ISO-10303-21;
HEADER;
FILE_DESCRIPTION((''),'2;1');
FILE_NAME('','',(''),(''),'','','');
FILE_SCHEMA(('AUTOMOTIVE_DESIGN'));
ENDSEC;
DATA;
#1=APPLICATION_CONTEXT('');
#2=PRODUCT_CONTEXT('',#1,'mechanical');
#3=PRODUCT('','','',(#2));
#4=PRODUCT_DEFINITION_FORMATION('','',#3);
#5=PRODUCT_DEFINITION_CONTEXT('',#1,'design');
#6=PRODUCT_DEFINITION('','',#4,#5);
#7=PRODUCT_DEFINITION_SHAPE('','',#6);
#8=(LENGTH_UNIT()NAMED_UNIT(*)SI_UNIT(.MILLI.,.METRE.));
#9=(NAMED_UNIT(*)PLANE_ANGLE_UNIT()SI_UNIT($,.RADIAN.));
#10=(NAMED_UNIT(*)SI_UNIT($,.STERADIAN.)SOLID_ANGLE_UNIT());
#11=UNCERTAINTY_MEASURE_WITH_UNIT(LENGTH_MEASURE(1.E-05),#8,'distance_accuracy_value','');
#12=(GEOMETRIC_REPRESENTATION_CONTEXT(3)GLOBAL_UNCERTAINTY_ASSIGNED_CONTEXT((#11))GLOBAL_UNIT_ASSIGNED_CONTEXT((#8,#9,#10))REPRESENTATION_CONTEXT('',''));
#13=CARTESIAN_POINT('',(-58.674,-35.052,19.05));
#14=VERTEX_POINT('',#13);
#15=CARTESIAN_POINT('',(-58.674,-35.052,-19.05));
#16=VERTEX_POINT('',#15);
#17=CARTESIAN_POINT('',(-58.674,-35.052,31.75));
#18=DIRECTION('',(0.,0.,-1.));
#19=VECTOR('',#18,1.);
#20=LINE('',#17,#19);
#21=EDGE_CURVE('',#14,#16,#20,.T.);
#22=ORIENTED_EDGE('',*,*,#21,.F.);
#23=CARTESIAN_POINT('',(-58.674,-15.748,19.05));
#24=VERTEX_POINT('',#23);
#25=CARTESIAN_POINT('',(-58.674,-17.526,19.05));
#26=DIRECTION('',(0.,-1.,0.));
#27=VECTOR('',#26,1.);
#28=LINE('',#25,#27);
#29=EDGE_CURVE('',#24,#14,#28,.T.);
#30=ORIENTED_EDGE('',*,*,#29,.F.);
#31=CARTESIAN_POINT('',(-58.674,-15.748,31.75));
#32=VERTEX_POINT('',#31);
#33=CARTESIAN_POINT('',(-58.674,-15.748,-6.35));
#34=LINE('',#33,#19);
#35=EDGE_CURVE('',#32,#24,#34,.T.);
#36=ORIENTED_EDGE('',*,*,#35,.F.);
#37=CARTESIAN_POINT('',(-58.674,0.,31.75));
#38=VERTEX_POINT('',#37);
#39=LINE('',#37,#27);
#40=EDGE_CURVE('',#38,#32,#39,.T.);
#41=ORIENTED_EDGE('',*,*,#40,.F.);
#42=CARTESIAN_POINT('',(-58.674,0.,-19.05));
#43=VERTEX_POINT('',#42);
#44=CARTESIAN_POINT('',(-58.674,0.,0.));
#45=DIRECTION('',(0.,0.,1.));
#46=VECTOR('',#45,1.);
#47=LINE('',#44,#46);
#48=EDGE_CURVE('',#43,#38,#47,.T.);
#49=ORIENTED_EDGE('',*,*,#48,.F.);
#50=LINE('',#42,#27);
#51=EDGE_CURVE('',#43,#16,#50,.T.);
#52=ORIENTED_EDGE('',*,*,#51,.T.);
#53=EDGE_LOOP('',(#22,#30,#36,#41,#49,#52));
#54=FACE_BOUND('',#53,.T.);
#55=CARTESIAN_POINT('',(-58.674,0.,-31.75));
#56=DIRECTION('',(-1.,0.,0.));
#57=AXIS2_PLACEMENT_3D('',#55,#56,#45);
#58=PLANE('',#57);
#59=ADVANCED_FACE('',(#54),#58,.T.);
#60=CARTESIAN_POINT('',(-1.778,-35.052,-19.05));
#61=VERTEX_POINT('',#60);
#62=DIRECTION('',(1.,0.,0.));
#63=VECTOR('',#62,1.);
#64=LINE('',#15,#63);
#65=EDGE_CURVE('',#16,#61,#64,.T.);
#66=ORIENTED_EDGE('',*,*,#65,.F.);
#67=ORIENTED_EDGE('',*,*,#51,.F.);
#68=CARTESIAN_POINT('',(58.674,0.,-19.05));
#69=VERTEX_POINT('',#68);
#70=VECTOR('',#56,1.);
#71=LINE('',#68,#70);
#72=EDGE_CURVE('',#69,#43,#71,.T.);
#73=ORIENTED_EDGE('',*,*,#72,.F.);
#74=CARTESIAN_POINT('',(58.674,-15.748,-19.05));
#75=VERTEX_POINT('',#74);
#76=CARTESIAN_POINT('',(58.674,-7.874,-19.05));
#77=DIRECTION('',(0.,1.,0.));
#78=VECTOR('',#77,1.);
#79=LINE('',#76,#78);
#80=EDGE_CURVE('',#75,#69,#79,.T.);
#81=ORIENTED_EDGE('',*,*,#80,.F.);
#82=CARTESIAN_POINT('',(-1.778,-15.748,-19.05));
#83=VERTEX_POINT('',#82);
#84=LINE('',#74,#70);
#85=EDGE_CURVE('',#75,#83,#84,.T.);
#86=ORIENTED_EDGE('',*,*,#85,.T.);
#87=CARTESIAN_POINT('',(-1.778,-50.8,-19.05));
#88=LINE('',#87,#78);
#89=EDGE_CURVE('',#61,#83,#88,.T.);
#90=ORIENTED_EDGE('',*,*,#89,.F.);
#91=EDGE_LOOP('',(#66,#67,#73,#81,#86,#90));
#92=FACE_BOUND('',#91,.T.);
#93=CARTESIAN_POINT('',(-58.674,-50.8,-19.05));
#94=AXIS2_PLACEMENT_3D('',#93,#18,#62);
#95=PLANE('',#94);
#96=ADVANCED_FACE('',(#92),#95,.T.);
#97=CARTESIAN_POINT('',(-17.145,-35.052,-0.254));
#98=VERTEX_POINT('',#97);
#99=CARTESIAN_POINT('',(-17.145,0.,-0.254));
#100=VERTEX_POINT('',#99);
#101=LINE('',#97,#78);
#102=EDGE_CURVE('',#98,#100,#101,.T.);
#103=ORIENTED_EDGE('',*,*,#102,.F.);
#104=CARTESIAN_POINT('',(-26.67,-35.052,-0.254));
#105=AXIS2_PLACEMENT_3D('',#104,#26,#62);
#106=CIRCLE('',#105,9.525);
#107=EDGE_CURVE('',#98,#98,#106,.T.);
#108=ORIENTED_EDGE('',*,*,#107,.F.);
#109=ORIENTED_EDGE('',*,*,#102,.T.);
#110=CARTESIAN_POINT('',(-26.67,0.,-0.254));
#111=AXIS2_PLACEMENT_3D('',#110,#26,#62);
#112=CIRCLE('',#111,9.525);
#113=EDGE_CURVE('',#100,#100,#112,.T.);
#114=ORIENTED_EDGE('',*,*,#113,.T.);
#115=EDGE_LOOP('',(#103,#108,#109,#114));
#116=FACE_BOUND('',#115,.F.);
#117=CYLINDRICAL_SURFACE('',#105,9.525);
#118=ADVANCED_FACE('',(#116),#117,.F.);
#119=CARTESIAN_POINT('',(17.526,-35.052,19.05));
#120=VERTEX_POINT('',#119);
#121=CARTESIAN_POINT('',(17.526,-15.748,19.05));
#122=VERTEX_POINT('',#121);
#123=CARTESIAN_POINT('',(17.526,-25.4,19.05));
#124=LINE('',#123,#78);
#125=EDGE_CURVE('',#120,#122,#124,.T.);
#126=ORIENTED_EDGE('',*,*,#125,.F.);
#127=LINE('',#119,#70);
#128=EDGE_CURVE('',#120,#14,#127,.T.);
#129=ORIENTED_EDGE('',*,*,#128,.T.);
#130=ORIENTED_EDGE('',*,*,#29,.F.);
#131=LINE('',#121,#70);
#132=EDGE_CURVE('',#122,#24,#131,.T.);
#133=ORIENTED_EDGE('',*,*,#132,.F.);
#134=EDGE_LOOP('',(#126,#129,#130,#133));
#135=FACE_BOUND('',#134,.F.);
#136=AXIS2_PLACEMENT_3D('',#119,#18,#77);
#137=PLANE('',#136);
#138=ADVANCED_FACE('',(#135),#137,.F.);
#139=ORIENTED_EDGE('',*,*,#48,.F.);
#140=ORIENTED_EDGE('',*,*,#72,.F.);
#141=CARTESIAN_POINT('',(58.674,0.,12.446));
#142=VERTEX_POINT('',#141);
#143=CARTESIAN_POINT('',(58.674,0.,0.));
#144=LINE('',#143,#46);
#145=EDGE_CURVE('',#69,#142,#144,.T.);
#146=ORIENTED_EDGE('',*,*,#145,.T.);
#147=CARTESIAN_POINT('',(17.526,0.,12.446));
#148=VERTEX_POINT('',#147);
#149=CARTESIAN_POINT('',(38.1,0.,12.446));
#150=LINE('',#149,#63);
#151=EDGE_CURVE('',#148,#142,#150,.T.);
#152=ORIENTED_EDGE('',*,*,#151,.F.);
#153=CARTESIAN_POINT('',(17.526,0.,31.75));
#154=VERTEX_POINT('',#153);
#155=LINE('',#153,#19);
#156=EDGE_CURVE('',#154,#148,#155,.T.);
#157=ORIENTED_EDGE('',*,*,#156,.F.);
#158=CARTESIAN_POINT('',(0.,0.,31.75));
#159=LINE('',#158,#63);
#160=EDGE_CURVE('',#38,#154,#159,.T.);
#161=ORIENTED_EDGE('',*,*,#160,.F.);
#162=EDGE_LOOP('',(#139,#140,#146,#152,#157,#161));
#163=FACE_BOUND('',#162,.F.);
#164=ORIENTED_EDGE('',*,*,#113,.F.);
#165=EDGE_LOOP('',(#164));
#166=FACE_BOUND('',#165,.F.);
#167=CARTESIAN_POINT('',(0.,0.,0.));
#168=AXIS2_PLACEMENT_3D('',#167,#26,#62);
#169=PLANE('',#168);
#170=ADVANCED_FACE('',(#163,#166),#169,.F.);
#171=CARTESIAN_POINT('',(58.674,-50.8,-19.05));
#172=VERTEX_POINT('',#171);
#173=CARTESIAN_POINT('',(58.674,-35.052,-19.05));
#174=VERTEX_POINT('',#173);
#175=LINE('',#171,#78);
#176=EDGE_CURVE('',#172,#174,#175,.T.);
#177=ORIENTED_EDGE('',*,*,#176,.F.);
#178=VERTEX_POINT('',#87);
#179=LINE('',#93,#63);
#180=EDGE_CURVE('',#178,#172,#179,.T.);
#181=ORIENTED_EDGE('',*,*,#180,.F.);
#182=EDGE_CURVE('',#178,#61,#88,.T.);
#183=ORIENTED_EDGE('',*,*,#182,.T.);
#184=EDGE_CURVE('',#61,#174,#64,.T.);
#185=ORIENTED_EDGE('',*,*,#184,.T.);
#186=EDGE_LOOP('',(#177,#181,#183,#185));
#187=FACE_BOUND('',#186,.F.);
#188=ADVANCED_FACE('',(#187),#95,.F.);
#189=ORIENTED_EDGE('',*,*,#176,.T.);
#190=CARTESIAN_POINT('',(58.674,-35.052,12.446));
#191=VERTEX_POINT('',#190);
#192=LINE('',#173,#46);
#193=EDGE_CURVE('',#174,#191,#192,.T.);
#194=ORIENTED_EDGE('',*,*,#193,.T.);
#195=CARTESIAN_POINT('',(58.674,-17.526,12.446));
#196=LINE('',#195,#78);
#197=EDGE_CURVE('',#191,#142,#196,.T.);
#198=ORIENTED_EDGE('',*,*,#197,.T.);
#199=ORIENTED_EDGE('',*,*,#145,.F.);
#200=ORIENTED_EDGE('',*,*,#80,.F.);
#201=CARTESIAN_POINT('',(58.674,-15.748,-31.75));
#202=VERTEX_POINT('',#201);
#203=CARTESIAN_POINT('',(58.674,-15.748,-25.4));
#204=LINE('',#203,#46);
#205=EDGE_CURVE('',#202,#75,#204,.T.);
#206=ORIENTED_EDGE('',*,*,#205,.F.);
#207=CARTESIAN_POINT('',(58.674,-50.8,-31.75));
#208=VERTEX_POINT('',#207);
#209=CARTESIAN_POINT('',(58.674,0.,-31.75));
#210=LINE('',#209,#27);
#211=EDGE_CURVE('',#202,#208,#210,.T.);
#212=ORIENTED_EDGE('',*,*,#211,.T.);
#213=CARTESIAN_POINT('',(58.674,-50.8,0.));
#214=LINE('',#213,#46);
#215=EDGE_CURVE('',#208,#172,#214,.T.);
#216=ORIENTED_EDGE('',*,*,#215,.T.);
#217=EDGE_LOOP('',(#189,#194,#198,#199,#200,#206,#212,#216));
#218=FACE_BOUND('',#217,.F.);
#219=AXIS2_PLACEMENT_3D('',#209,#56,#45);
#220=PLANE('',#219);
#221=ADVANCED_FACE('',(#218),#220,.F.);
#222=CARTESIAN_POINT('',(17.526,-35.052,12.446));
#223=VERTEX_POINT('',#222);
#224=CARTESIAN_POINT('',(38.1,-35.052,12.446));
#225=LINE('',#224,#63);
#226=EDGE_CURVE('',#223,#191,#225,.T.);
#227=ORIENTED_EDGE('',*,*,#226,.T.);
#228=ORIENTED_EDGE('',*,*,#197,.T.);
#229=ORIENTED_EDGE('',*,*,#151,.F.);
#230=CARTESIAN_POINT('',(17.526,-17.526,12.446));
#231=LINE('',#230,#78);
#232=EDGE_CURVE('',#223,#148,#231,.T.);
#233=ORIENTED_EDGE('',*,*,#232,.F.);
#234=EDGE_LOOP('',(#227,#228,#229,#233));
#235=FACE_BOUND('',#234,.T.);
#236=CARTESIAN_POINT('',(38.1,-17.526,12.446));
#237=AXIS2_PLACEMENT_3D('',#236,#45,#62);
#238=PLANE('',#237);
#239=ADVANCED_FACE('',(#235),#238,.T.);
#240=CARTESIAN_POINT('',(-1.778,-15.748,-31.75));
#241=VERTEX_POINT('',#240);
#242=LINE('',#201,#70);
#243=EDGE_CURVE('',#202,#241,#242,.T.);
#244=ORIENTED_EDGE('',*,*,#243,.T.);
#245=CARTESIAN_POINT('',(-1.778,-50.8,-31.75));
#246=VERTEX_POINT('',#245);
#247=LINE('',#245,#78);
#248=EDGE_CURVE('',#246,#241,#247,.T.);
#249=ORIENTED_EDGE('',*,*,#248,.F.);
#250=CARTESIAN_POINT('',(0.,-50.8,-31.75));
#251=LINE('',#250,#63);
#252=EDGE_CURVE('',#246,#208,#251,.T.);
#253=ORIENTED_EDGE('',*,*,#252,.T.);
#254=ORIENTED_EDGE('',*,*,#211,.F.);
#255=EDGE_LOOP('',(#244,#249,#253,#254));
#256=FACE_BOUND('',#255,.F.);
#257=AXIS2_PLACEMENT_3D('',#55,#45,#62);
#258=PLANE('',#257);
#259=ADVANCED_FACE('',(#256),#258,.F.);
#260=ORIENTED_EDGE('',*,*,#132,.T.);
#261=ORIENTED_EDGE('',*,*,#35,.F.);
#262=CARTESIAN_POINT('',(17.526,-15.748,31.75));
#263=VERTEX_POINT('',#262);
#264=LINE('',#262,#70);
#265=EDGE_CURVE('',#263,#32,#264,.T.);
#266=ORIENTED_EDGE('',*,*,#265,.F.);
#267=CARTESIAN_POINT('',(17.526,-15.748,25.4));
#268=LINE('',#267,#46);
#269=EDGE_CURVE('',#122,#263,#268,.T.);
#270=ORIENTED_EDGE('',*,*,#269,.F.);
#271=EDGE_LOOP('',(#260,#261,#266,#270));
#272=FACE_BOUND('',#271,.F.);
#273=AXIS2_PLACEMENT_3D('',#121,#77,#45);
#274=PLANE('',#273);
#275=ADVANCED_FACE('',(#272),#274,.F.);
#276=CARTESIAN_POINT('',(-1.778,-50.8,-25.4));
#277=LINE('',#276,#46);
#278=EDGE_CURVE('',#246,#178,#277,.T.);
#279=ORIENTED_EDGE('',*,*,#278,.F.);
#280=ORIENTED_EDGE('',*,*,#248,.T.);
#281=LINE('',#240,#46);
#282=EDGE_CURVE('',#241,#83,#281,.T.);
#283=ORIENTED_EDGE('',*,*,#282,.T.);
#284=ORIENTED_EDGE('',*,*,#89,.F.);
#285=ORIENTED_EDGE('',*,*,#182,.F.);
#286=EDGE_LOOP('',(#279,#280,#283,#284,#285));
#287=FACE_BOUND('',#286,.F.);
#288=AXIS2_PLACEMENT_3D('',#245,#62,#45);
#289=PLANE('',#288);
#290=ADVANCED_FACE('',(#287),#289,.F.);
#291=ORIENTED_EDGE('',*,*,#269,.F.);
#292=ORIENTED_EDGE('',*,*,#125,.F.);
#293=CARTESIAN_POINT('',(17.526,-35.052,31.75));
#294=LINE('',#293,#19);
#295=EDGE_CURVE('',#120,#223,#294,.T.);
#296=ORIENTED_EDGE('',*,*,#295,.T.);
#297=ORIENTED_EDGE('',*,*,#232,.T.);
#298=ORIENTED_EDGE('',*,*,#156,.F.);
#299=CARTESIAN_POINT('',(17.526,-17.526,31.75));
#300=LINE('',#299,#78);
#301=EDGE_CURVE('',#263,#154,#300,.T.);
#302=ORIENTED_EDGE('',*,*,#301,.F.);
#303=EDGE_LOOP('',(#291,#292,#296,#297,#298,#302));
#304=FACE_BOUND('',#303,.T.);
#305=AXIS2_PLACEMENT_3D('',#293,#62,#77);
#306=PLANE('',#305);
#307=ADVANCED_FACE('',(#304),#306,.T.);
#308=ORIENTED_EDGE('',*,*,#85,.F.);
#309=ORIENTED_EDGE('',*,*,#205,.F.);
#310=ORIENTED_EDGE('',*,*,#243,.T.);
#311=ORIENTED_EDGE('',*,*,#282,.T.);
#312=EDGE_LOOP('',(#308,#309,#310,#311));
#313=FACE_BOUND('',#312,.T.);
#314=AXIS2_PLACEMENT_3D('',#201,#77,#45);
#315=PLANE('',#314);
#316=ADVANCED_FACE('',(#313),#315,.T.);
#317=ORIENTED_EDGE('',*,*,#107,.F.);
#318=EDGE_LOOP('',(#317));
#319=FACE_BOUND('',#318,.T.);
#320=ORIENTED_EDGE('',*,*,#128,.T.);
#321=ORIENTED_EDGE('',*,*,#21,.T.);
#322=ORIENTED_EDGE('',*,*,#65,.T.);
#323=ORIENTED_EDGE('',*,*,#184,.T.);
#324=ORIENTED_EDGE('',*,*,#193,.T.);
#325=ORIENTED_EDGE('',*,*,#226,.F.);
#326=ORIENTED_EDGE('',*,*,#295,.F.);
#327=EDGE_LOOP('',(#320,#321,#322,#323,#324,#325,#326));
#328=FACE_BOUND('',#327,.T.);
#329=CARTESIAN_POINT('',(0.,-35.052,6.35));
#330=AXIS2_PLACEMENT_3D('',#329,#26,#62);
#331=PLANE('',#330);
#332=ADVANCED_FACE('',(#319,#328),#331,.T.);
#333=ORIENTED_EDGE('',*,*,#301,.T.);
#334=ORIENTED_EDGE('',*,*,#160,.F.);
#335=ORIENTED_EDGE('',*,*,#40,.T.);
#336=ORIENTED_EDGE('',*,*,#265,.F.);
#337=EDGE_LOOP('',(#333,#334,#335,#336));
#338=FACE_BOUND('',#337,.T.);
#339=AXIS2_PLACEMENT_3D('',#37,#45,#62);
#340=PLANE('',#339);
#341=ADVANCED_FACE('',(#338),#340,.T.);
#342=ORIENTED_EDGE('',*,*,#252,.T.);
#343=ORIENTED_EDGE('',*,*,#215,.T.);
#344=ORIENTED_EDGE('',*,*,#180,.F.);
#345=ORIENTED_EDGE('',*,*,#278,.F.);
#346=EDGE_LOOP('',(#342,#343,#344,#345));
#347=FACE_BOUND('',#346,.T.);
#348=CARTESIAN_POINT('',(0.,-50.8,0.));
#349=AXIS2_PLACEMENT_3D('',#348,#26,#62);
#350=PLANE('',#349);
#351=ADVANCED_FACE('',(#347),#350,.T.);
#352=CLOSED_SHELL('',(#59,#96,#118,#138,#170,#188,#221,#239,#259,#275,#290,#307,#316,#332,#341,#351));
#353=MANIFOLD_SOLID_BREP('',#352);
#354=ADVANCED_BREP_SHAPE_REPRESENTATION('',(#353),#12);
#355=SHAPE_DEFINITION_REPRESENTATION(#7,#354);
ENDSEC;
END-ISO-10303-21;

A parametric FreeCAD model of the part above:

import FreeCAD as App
import Part
import Sketcher
Q = App.Units.Quantity


def add_polygon(sketch, points):
    """Adds a closed chain of lines whose ends are joined by coincident constraints."""
    first, n = sketch.GeometryCount, len(points)
    for a, b in zip(points, points[1:] + points[:1]):
        sketch.addGeometry(Part.LineSegment(App.Vector(*a, 0), App.Vector(*b, 0)), False)
    for i in range(n):
        sketch.addConstraint(Sketcher.Constraint("Coincident", first + i, 2, first + (i + 1) % n, 1))

doc = App.newDocument("Part")
body = doc.addObject("PartDesign::Body", "Body")

# Sketch on XZ plane
sketch1 = body.newObject("Sketcher::SketchObject", "Sketch")
sketch1.AttachmentSupport = (doc.getObject("XZ_Plane"), [""])
sketch1.MapMode = "FlatFace"
add_polygon(sketch1, [(-58.674, 31.75), (-58.674, -31.75), (58.674, -31.75), (58.674, 31.75)])  # lines 0-3
sketch1.addConstraint([
    Sketcher.Constraint("Vertical", 0),
    Sketcher.Constraint("Horizontal", 1),
    Sketcher.Constraint("Vertical", 2),
    Sketcher.Constraint("Horizontal", 3),
    Sketcher.Constraint("Symmetric", 0, 2, 2, 2, -1, 1),
    Sketcher.Constraint("DistanceY", 0, 2, 0, 1, Q("2.5 in")),
    Sketcher.Constraint("DistanceX", 1, 1, 1, 2, Q("4.62 in")),
])
pad1 = body.newObject("PartDesign::Pad", "Pad")
pad1.Profile = sketch1
pad1.Length = Q("2 in")

# Sketch on XZ plane
sketch2 = body.newObject("Sketcher::SketchObject", "Sketch001")
sketch2.AttachmentSupport = (doc.getObject("XZ_Plane"), [""])
sketch2.MapMode = "FlatFace"
sketch2.AttachmentOffset = App.Placement(App.Vector(0, 0, 2 * 25.4), App.Rotation())
add_polygon(sketch2, [(-58.674, -19.05), (-58.674, -31.75), (-1.778, -31.75), (-1.778, -19.05)])  # lines 0-3
sketch2.addConstraint([
    Sketcher.Constraint("Vertical", 0),
    Sketcher.Constraint("Horizontal", 1),
    Sketcher.Constraint("Vertical", 2),
    Sketcher.Constraint("Horizontal", 3),
    Sketcher.Constraint("DistanceY", 0, 2, 0, 1, Q("0.5 in")),
    Sketcher.Constraint("DistanceX", 1, 1, 1, 2, Q("2.24 in")),
    Sketcher.Constraint("DistanceX", 0, 2, -1, 1, Q("2.31 in")),
    Sketcher.Constraint("DistanceY", 0, 2, -1, 1, Q("1.25 in")),
])
pocket1 = body.newObject("PartDesign::Pocket", "Pocket")
pocket1.Profile = sketch2
pocket1.Length = Q("2 in")

# Sketch on XZ plane
sketch3 = body.newObject("Sketcher::SketchObject", "Sketch002")
sketch3.AttachmentSupport = (doc.getObject("XZ_Plane"), [""])
sketch3.MapMode = "FlatFace"
sketch3.AttachmentOffset = App.Placement(App.Vector(0, 0, 2 * 25.4), App.Rotation())
add_polygon(sketch3, [(58.674, 31.75), (-58.674, 31.75), (-58.674, -19.05), (58.674, -19.05)])  # lines 0-3
sketch3.addConstraint([
    Sketcher.Constraint("Horizontal", 0),
    Sketcher.Constraint("Vertical", 1),
    Sketcher.Constraint("Horizontal", 2),
    Sketcher.Constraint("Vertical", 3),
    Sketcher.Constraint("DistanceY", 1, 2, 1, 1, Q("2 in")),
    Sketcher.Constraint("DistanceX", 0, 2, 0, 1, Q("4.62 in")),
    Sketcher.Constraint("DistanceX", 0, 2, -1, 1, Q("2.31 in")),
    Sketcher.Constraint("DistanceY", -1, 1, 0, 2, Q("1.25 in")),
])
pocket2 = body.newObject("PartDesign::Pocket", "Pocket001")
pocket2.Profile = sketch3
pocket2.Length = Q("0.62 in")

# Sketch on XZ plane
sketch4 = body.newObject("Sketcher::SketchObject", "Sketch003")
sketch4.AttachmentSupport = (doc.getObject("XZ_Plane"), [""])
sketch4.MapMode = "FlatFace"
sketch4.AttachmentOffset = App.Placement(App.Vector(0, 0, 1.38 * 25.4), App.Rotation())
sketch4.addGeometry(Part.Circle(App.Vector(-26.67, -0.254, 0), App.Vector(0, 0, 1), 9.525), False)
sketch4.addConstraint([
    Sketcher.Constraint("Diameter", 0, Q("0.75 in")),
    Sketcher.Constraint("DistanceX", 0, 3, -1, 1, Q("1.05 in")),
    Sketcher.Constraint("DistanceY", 0, 3, -1, 1, Q("0.01 in")),
])
pocket3 = body.newObject("PartDesign::Pocket", "Pocket002")
pocket3.Profile = sketch4
pocket3.Type = "ThroughAll"

# Sketch on YZ plane
sketch5 = body.newObject("Sketcher::SketchObject", "Sketch004")
sketch5.AttachmentSupport = (doc.getObject("YZ_Plane"), [""])
sketch5.MapMode = "FlatFace"
sketch5.AttachmentOffset = App.Placement(App.Vector(0, 0, 2.31 * 25.4), App.Rotation())
add_polygon(sketch5, [(-15.748, -19.05), (-15.748, -31.75), (0, -31.75), (0, -19.05)])  # lines 0-3
sketch5.addConstraint([
    Sketcher.Constraint("Vertical", 0),
    Sketcher.Constraint("Horizontal", 1),
    Sketcher.Constraint("Vertical", 2),
    Sketcher.Constraint("Horizontal", 3),
    Sketcher.Constraint("PointOnObject", 1, 2, -2),
    Sketcher.Constraint("DistanceY", 0, 2, 0, 1, Q("0.5 in")),
    Sketcher.Constraint("DistanceX", 1, 1, 1, 2, Q("0.62 in")),
    Sketcher.Constraint("DistanceY", 0, 2, -1, 1, Q("1.25 in")),
])
pocket4 = body.newObject("PartDesign::Pocket", "Pocket003")
pocket4.Profile = sketch5
pocket4.Type = "ThroughAll"

# Sketch on XY plane
sketch6 = body.newObject("Sketcher::SketchObject", "Sketch005")
sketch6.AttachmentSupport = (doc.getObject("XY_Plane"), [""])
sketch6.MapMode = "FlatFace"
sketch6.AttachmentOffset = App.Placement(App.Vector(0, 0, 1.25 * 25.4), App.Rotation())
add_polygon(sketch6, [(17.526, 0), (17.526, -35.052), (58.674, -35.052), (58.674, 0)])  # lines 0-3
sketch6.addConstraint([
    Sketcher.Constraint("Vertical", 0),
    Sketcher.Constraint("Horizontal", 1),
    Sketcher.Constraint("Vertical", 2),
    Sketcher.Constraint("Horizontal", 3),
    Sketcher.Constraint("PointOnObject", 2, 2, -1),
    Sketcher.Constraint("DistanceX", 1, 1, 1, 2, Q("1.62 in")),
    Sketcher.Constraint("DistanceY", 0, 2, 0, 1, Q("1.38 in")),
    Sketcher.Constraint("DistanceX", -1, 1, 0, 2, Q("0.69 in")),
])
pocket5 = body.newObject("PartDesign::Pocket", "Pocket004")
pocket5.Profile = sketch6
pocket5.Length = Q("0.76 in")

# Sketch on YZ plane
sketch7 = body.newObject("Sketcher::SketchObject", "Sketch006")
sketch7.AttachmentSupport = (doc.getObject("YZ_Plane"), [""])
sketch7.MapMode = "FlatFace"
sketch7.AttachmentOffset = App.Placement(App.Vector(0, 0, 0.69 * 25.4), App.Rotation())
add_polygon(sketch7, [(-35.052, 31.75), (-35.052, 19.05), (-15.748, 19.05), (-15.748, 31.75)])  # lines 0-3
sketch7.addConstraint([
    Sketcher.Constraint("Vertical", 0),
    Sketcher.Constraint("Horizontal", 1),
    Sketcher.Constraint("Vertical", 2),
    Sketcher.Constraint("Horizontal", 3),
    Sketcher.Constraint("DistanceY", 0, 2, 0, 1, Q("0.5 in")),
    Sketcher.Constraint("DistanceX", 1, 1, 1, 2, Q("0.76 in")),
    Sketcher.Constraint("DistanceX", 0, 2, -1, 1, Q("1.38 in")),
    Sketcher.Constraint("DistanceY", -1, 1, 0, 2, Q("0.75 in")),
])
pocket6 = body.newObject("PartDesign::Pocket", "Pocket005")
pocket6.Profile = sketch7
pocket6.Type = "ThroughAll"

doc.recompute()
